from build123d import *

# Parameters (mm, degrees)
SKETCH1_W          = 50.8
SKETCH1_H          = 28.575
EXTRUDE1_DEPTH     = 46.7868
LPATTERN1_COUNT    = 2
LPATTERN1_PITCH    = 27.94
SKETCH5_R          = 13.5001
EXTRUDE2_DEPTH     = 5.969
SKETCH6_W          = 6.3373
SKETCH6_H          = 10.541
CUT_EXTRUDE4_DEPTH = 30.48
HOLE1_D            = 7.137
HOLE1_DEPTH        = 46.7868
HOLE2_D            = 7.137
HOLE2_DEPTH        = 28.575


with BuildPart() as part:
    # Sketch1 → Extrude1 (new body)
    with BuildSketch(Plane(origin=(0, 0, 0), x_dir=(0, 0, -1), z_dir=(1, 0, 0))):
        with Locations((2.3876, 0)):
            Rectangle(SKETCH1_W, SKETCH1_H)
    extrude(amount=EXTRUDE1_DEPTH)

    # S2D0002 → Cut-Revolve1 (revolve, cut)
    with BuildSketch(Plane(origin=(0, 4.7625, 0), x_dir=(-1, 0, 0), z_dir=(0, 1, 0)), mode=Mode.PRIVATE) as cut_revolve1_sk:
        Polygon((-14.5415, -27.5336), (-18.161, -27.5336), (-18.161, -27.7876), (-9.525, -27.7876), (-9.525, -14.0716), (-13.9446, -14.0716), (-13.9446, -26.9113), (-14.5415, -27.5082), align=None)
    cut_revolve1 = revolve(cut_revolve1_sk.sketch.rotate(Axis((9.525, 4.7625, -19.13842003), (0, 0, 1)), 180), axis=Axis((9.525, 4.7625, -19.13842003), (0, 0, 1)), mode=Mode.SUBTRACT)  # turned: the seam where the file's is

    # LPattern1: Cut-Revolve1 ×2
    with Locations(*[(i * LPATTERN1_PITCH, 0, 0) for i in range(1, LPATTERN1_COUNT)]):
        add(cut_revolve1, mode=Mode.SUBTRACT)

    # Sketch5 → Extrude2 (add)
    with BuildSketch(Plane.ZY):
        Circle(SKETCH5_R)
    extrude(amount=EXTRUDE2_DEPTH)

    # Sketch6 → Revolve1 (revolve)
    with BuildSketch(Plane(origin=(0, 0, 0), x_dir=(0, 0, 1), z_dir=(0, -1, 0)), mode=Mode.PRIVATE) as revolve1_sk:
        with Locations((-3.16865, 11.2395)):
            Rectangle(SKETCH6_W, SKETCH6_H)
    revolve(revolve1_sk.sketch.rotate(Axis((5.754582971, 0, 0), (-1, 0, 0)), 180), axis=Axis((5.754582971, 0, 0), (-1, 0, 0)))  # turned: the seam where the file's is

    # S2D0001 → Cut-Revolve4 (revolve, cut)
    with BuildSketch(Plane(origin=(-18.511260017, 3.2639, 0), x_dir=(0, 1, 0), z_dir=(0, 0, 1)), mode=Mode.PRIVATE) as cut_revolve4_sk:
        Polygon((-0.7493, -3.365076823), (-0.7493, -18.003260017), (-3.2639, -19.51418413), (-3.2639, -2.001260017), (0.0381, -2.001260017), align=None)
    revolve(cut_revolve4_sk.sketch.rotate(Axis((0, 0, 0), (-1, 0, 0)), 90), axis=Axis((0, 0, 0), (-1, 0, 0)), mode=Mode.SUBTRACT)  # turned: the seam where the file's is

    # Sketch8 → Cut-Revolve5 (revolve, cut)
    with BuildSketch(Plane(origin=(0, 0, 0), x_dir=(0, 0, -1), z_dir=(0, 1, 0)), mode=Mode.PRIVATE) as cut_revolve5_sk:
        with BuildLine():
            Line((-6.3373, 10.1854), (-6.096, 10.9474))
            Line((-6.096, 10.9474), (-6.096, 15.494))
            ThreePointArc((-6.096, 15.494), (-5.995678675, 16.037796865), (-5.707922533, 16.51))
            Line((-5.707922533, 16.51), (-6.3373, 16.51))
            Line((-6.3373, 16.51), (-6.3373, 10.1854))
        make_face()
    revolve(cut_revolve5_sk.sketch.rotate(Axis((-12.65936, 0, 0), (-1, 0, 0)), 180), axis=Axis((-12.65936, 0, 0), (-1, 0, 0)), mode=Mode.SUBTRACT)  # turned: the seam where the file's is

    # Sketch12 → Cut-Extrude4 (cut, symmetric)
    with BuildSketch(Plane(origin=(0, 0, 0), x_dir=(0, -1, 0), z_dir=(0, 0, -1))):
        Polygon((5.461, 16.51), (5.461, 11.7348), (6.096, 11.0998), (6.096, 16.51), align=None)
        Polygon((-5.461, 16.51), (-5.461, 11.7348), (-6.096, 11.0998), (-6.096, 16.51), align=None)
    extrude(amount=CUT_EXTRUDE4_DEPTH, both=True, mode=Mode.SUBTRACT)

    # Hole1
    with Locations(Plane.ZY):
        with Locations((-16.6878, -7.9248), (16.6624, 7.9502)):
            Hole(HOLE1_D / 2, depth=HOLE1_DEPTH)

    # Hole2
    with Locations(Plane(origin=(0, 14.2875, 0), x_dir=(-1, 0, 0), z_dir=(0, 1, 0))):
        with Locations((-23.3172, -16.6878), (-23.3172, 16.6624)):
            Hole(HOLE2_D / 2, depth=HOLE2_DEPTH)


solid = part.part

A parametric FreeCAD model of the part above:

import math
import FreeCAD as App
import Part
import Sketcher

V = App.Vector
Q = App.Units.Quantity

doc = App.newDocument("Part")
body = doc.addObject("PartDesign::Body", "Body")

# Sketch on YZ plane
sketch1 = doc.addObject("Sketcher::SketchObject", "Sketch")
body.addObject(sketch1)
sketch1.AttachmentSupport = (doc.YZ_Plane, [""])
sketch1.MapMode = "FlatFace"
sketch1.addGeometry(Part.LineSegment(V(14.2875, 23.0124, 0), V(-14.2875, 23.0124, 0)), False)
sketch1.addGeometry(Part.LineSegment(V(-14.2875, 23.0124, 0), V(-14.2875, -27.7876, 0)), False)
sketch1.addGeometry(Part.LineSegment(V(-14.2875, -27.7876, 0), V(14.2875, -27.7876, 0)), False)
sketch1.addGeometry(Part.LineSegment(V(14.2875, -27.7876, 0), V(14.2875, 23.0124, 0)), False)
sketch1.addConstraint(Sketcher.Constraint("Coincident", 0, 2, 1, 1))
sketch1.addConstraint(Sketcher.Constraint("Coincident", 1, 2, 2, 1))
sketch1.addConstraint(Sketcher.Constraint("Coincident", 2, 2, 3, 1))
sketch1.addConstraint(Sketcher.Constraint("Coincident", 3, 2, 0, 1))
sketch1.addConstraint(Sketcher.Constraint("Horizontal", 0))
sketch1.addConstraint(Sketcher.Constraint("Vertical", 1))
sketch1.addConstraint(Sketcher.Constraint("Horizontal", 2))
sketch1.addConstraint(Sketcher.Constraint("Vertical", 3))
sketch1.addConstraint(Sketcher.Constraint("DistanceY", 1, 2, 1, 1, Q("2 in")))
sketch1.addConstraint(Sketcher.Constraint("DistanceX", 0, 2, 0, 1, Q("1.125 in")))
sketch1.addConstraint(Sketcher.Constraint("DistanceX", 0, 2, -1, 1, Q("0.5625 in")))
sketch1.addConstraint(Sketcher.Constraint("DistanceY", -1, 1, 0, 2, Q("0.906 in")))
pad1 = doc.addObject("PartDesign::Pad", "Pad")
body.addObject(pad1)
pad1.Profile = sketch1
pad1.Length = Q("1.842 in")

# Sketch on XZ plane
sketch2 = doc.addObject("Sketcher::SketchObject", "Sketch001")
body.addObject(sketch2)
sketch2.AttachmentSupport = (doc.XZ_Plane, [""])
sketch2.MapMode = "FlatFace"
sketch2.AttachmentOffset = App.Placement(V(0, 0, -0.1875 * 25.4), App.Rotation())
sketch2.addGeometry(Part.LineSegment(V(14.5415, -27.5336, 0), V(18.161, -27.5336, 0)), False)
sketch2.addGeometry(Part.LineSegment(V(18.161, -27.5336, 0), V(18.161, -27.7876, 0)), False)
sketch2.addGeometry(Part.LineSegment(V(18.161, -27.7876, 0), V(9.525, -27.7876, 0)), False)
sketch2.addGeometry(Part.LineSegment(V(9.525, -27.7876, 0), V(9.525, -14.0716, 0)), False)
sketch2.addGeometry(Part.LineSegment(V(9.525, -14.0716, 0), V(13.9446, -14.0716, 0)), False)
sketch2.addGeometry(Part.LineSegment(V(13.9446, -14.0716, 0), V(13.9446, -26.9113, 0)), False)
sketch2.addGeometry(Part.LineSegment(V(13.9446, -26.9113, 0), V(14.5415, -27.5082, 0)), False)
sketch2.addGeometry(Part.LineSegment(V(14.5415, -27.5082, 0), V(14.5415, -27.5336, 0)), False)
sketch2.addGeometry(Part.LineSegment(V(9.525, -27.7876, 0), V(9.525, -14.0716, 0)), True)  # axis
sketch2.addConstraint(Sketcher.Constraint("Coincident", 0, 2, 1, 1))
sketch2.addConstraint(Sketcher.Constraint("Coincident", 1, 2, 2, 1))
sketch2.addConstraint(Sketcher.Constraint("Coincident", 2, 2, 3, 1))
sketch2.addConstraint(Sketcher.Constraint("Coincident", 3, 2, 4, 1))
sketch2.addConstraint(Sketcher.Constraint("Coincident", 4, 2, 5, 1))
sketch2.addConstraint(Sketcher.Constraint("Coincident", 5, 2, 6, 1))
sketch2.addConstraint(Sketcher.Constraint("Coincident", 6, 2, 7, 1))
sketch2.addConstraint(Sketcher.Constraint("Coincident", 7, 2, 0, 1))
sketch2.addConstraint(Sketcher.Constraint("Horizontal", 0))
sketch2.addConstraint(Sketcher.Constraint("Vertical", 1))
sketch2.addConstraint(Sketcher.Constraint("Horizontal", 2))
sketch2.addConstraint(Sketcher.Constraint("Vertical", 3))
sketch2.addConstraint(Sketcher.Constraint("Horizontal", 4))
sketch2.addConstraint(Sketcher.Constraint("Vertical", 5))
sketch2.addConstraint(Sketcher.Constraint("Vertical", 7))
sketch2.addConstraint(Sketcher.Constraint("Vertical", 8))
sketch2.addConstraint(Sketcher.Constraint("Coincident", 8, 1, 2, 2))
sketch2.addConstraint(Sketcher.Constraint("Horizontal", 4, 2, 8, 2))
sketch2.addConstraint(Sketcher.Constraint("Angle", 6, Q("-45 deg")))
sketch2.addConstraint(Sketcher.Constraint("DistanceX", 2, 2, 2, 1, Q("0.34 in")))
sketch2.addConstraint(Sketcher.Constraint("DistanceY", 1, 2, 1, 1, Q("0.01 in")))
sketch2.addConstraint(Sketcher.Constraint("DistanceY", 3, 1, 3, 2, Q("0.54 in")))
sketch2.addConstraint(Sketcher.Constraint("DistanceX", 4, 1, 4, 2, Q("0.174 in")))
sketch2.addConstraint(Sketcher.Constraint("DistanceY", 7, 2, 7, 1, Q("0.001 in")))
sketch2.addConstraint(Sketcher.Constraint("DistanceX", 0, 1, 0, 2, Q("0.1425 in")))
sketch2.addConstraint(Sketcher.Constraint("DistanceX", -1, 1, 0, 2, Q("0.715 in")))
sketch2.addConstraint(Sketcher.Constraint("DistanceY", 0, 2, -1, 1, Q("1.084 in")))
groove = doc.addObject("PartDesign::Groove", "Groove")
body.addObject(groove)
groove.Profile = sketch2
groove.ReferenceAxis = (sketch2, ["Axis0"])
groove.Angle = 360
doc.recompute()

linearpattern = doc.addObject("PartDesign::LinearPattern", "LinearPattern")
body.addObject(linearpattern)
linearpattern.Originals = [groove]
linearpattern.Direction = (doc.X_Axis, [""])
linearpattern.Mode = "offset"
linearpattern.Offset = Q("1.1 in")
linearpattern.Occurrences = 2
body.Tip = linearpattern

# Sketch on YZ plane
sketch3 = doc.addObject("Sketcher::SketchObject", "Sketch002")
body.addObject(sketch3)
sketch3.AttachmentSupport = (doc.YZ_Plane, [""])
sketch3.MapMode = "FlatFace"
sketch3.addGeometry(Part.Circle(V(0, 0, 0), V(0, 0, 1), 13.5001), False)
sketch3.addConstraint(Sketcher.Constraint("Coincident", 0, 3, -1, 1))
sketch3.addConstraint(Sketcher.Constraint("Diameter", 0, Q("1.063 in")))
pad2 = doc.addObject("PartDesign::Pad", "Pad001")
body.addObject(pad2)
pad2.Profile = sketch3
pad2.Length = Q("0.235 in")
pad2.Reversed = True

# Sketch on XZ plane
sketch4 = doc.addObject("Sketcher::SketchObject", "Sketch003")
body.addObject(sketch4)
sketch4.AttachmentSupport = (doc.XZ_Plane, [""])
sketch4.MapMode = "FlatFace"
sketch4.addGeometry(Part.LineSegment(V(-16.51, -6.3373, 0), V(-5.969, -6.3373, 0)), False)
sketch4.addGeometry(Part.LineSegment(V(-5.969, -6.3373, 0), V(-5.969, 0, 0)), False)
sketch4.addGeometry(Part.LineSegment(V(-5.969, 0, 0), V(-16.51, 0, 0)), False)
sketch4.addGeometry(Part.LineSegment(V(-16.51, 0, 0), V(-16.51, -6.3373, 0)), False)
sketch4.addConstraint(Sketcher.Constraint("Coincident", 0, 2, 1, 1))
sketch4.addConstraint(Sketcher.Constraint("Coincident", 1, 2, 2, 1))
sketch4.addConstraint(Sketcher.Constraint("Coincident", 2, 2, 3, 1))
sketch4.addConstraint(Sketcher.Constraint("Coincident", 3, 2, 0, 1))
sketch4.addConstraint(Sketcher.Constraint("Horizontal", 0))
sketch4.addConstraint(Sketcher.Constraint("Vertical", 1))
sketch4.addConstraint(Sketcher.Constraint("Horizontal", 2))
sketch4.addConstraint(Sketcher.Constraint("Vertical", 3))
sketch4.addConstraint(Sketcher.Constraint("PointOnObject", 1, 2, -1))
sketch4.addConstraint(Sketcher.Constraint("DistanceX", 0, 1, 0, 2, Q("0.415 in")))
sketch4.addConstraint(Sketcher.Constraint("DistanceX", 2, 2, -1, 1, Q("0.65 in")))
sketch4.addConstraint(Sketcher.Constraint("DistanceY", 1, 1, 1, 2, Q("0.2495 in")))
revolution = doc.addObject("PartDesign::Revolution", "Revolution")
body.addObject(revolution)
revolution.Profile = sketch4
revolution.ReferenceAxis = (sketch4, ["H_Axis"])
revolution.Angle = 360

# Sketch on XY plane
sketch5 = doc.addObject("Sketcher::SketchObject", "Sketch004")
body.addObject(sketch5)
sketch5.AttachmentSupport = (doc.XY_Plane, [""])
sketch5.MapMode = "FlatFace"
sketch5.addGeometry(Part.LineSegment(V(-0.508, 2.5146, 0), V(-15.146183, 2.5146, 0)), False)
sketch5.addGeometry(Part.LineSegment(V(-15.146183, 2.5146, 0), V(-16.51, 3.302, 0)), False)
sketch5.addGeometry(Part.LineSegment(V(-16.51, 3.302, 0), V(-16.51, 0, 0)), False)
sketch5.addGeometry(Part.LineSegment(V(-16.51, 0, 0), V(1.002924, 0, 0)), False)
sketch5.addGeometry(Part.LineSegment(V(1.002924, 0, 0), V(-0.508, 2.5146, 0)), False)
sketch5.addConstraint(Sketcher.Constraint("Coincident", 0, 2, 1, 1))
sketch5.addConstraint(Sketcher.Constraint("Coincident", 1, 2, 2, 1))
sketch5.addConstraint(Sketcher.Constraint("Coincident", 2, 2, 3, 1))
sketch5.addConstraint(Sketcher.Constraint("Coincident", 3, 2, 4, 1))
sketch5.addConstraint(Sketcher.Constraint("Coincident", 4, 2, 0, 1))
sketch5.addConstraint(Sketcher.Constraint("Horizontal", 0))
sketch5.addConstraint(Sketcher.Constraint("Vertical", 2))
sketch5.addConstraint(Sketcher.Constraint("Horizontal", 3))
sketch5.addConstraint(Sketcher.Constraint("PointOnObject", 2, 2, -1))
sketch5.addConstraint(Sketcher.Constraint("Angle", 1, Q("150 deg")))
sketch5.addConstraint(Sketcher.Constraint("Angle", 4, Q("121 deg")))
sketch5.addConstraint(Sketcher.Constraint("DistanceY", 2, 2, 2, 1, Q("0.13 in")))
sketch5.addConstraint(Sketcher.Constraint("DistanceX", 1, 2, -1, 1, Q("0.65 in")))
sketch5.addConstraint(Sketcher.Constraint("DistanceX", 4, 2, -1, 1, Q("0.02 in")))
sketch5.addConstraint(Sketcher.Constraint("Distance", 1, Q("0.062 in")))
groove2 = doc.addObject("PartDesign::Groove", "Groove001")
body.addObject(groove2)
groove2.Profile = sketch5
groove2.ReferenceAxis = (sketch5, ["H_Axis"])
groove2.Angle = 360

# Sketch on XZ plane
sketch6 = doc.addObject("Sketcher::SketchObject", "Sketch005")
body.addObject(sketch6)
sketch6.AttachmentSupport = (doc.XZ_Plane, [""])
sketch6.MapMode = "FlatFace"
sketch6.addGeometry(Part.LineSegment(V(-10.1854, 6.3373, 0), V(-10.9474, 6.096, 0)), False)
sketch6.addGeometry(Part.LineSegment(V(-10.9474, 6.096, 0), V(-15.494, 6.096, 0)), False)
sketch6.addGeometry(Part.ArcOfCircle(Part.Circle(V(-15.494, 4.572, 0), V(0, 0, 1), 1.524), math.radians(90), math.radians(131.810315)), False)
sketch6.addGeometry(Part.LineSegment(V(-16.51, 5.707923, 0), V(-16.51, 6.3373, 0)), False)
sketch6.addGeometry(Part.LineSegment(V(-16.51, 6.3373, 0), V(-10.1854, 6.3373, 0)), False)
sketch6.addConstraint(Sketcher.Constraint("Coincident", 0, 2, 1, 1))
sketch6.addConstraint(Sketcher.Constraint("Tangent", 1, 2, 2, 1))
sketch6.addConstraint(Sketcher.Constraint("Coincident", 2, 2, 3, 1))
sketch6.addConstraint(Sketcher.Constraint("Coincident", 3, 2, 4, 1))
sketch6.addConstraint(Sketcher.Constraint("Coincident", 4, 2, 0, 1))
sketch6.addConstraint(Sketcher.Constraint("Horizontal", 1))
sketch6.addConstraint(Sketcher.Constraint("Vertical", 3))
sketch6.addConstraint(Sketcher.Constraint("Horizontal", 4))
sketch6.addConstraint(Sketcher.Constraint("Radius", 2, Q("0.06 in")))
sketch6.addConstraint(Sketcher.Constraint("DistanceX", 1, 2, 1, 1, Q("0.179 in")))
sketch6.addConstraint(Sketcher.Constraint("DistanceX", 4, 1, 4, 2, Q("0.249 in")))
sketch6.addConstraint(Sketcher.Constraint("DistanceX", 2, 3, -1, 1, Q("0.61 in")))
sketch6.addConstraint(Sketcher.Constraint("DistanceY", -1, 1, 2, 3, Q("0.18 in")))
sketch6.addConstraint(Sketcher.Constraint("DistanceX", 2, 2, -1, 1, Q("0.65 in")))
sketch6.addConstraint(Sketcher.Constraint("DistanceY", -1, 1, 3, 2, Q("0.2495 in")))
groove3 = doc.addObject("PartDesign::Groove", "Groove002")
body.addObject(groove3)
groove3.Profile = sketch6
groove3.ReferenceAxis = (sketch6, ["H_Axis"])
groove3.Angle = 360

# Sketch on XY plane
sketch7 = doc.addObject("Sketcher::SketchObject", "Sketch006")
body.addObject(sketch7)
sketch7.AttachmentSupport = (doc.XY_Plane, [""])
sketch7.MapMode = "FlatFace"
sketch7.addGeometry(Part.LineSegment(V(-16.51, -5.461, 0), V(-11.7348, -5.461, 0)), False)
sketch7.addGeometry(Part.LineSegment(V(-11.7348, -5.461, 0), V(-11.0998, -6.096, 0)), False)
sketch7.addGeometry(Part.LineSegment(V(-11.0998, -6.096, 0), V(-16.51, -6.096, 0)), False)
sketch7.addGeometry(Part.LineSegment(V(-16.51, -6.096, 0), V(-16.51, -5.461, 0)), False)
sketch7.addGeometry(Part.LineSegment(V(-11.7348, 5.461, 0), V(-16.51, 5.461, 0)), False)
sketch7.addGeometry(Part.LineSegment(V(-16.51, 5.461, 0), V(-16.51, 6.096, 0)), False)
sketch7.addGeometry(Part.LineSegment(V(-16.51, 6.096, 0), V(-11.0998, 6.096, 0)), False)
sketch7.addGeometry(Part.LineSegment(V(-11.0998, 6.096, 0), V(-11.7348, 5.461, 0)), False)
sketch7.addConstraint(Sketcher.Constraint("Coincident", 0, 2, 1, 1))
sketch7.addConstraint(Sketcher.Constraint("Coincident", 1, 2, 2, 1))
sketch7.addConstraint(Sketcher.Constraint("Coincident", 2, 2, 3, 1))
sketch7.addConstraint(Sketcher.Constraint("Coincident", 3, 2, 0, 1))
sketch7.addConstraint(Sketcher.Constraint("Coincident", 4, 2, 5, 1))
sketch7.addConstraint(Sketcher.Constraint("Coincident", 5, 2, 6, 1))
sketch7.addConstraint(Sketcher.Constraint("Coincident", 6, 2, 7, 1))
sketch7.addConstraint(Sketcher.Constraint("Coincident", 7, 2, 4, 1))
sketch7.addConstraint(Sketcher.Constraint("Horizontal", 0))
sketch7.addConstraint(Sketcher.Constraint("Horizontal", 2))
sketch7.addConstraint(Sketcher.Constraint("Vertical", 3))
sketch7.addConstraint(Sketcher.Constraint("Horizontal", 4))
sketch7.addConstraint(Sketcher.Constraint("Vertical", 5))
sketch7.addConstraint(Sketcher.Constraint("Horizontal", 6))
sketch7.addConstraint(Sketcher.Constraint("Symmetric", 3, 2, 4, 2, -1))
sketch7.addConstraint(Sketcher.Constraint("Symmetric", 1, 2, 6, 2, -1))
sketch7.addConstraint(Sketcher.Constraint("Perpendicular", 1, 7))
sketch7.addConstraint(Sketcher.Constraint("Vertical", 0, 2, 7, 2))
sketch7.addConstraint(Sketcher.Constraint("DistanceX", 0, 1, 0, 2, Q("0.188 in")))
sketch7.addConstraint(Sketcher.Constraint("DistanceX", 2, 2, 2, 1, Q("0.213 in")))
sketch7.addConstraint(Sketcher.Constraint("DistanceY", 1, 2, -1, 1, Q("0.24 in")))
sketch7.addConstraint(Sketcher.Constraint("DistanceX", 2, 2, -1, 1, Q("0.65 in")))
pocket1 = doc.addObject("PartDesign::Pocket", "Pocket")
body.addObject(pocket1)
pocket1.Profile = sketch7
pocket1.Length = Q("2.4 in")
pocket1.Midplane = True

# Sketch on YZ plane
sketch8 = doc.addObject("Sketcher::SketchObject", "Sketch007")
body.addObject(sketch8)
sketch8.AttachmentSupport = (doc.YZ_Plane, [""])
sketch8.MapMode = "FlatFace"
sketch8.addGeometry(Part.Circle(V(-7.9248, -16.6878, 0), V(0, 0, 1), 3.5685), False)
sketch8.addGeometry(Part.Circle(V(7.9502, 16.6624, 0), V(0, 0, 1), 3.5685), False)
sketch8.addConstraint(Sketcher.Constraint("Equal", 0, 1))
sketch8.addConstraint(Sketcher.Constraint("Diameter", 0, 7.137))
sketch8.addConstraint(Sketcher.Constraint("DistanceX", 0, 3, -1, 1, Q("0.312 in")))
sketch8.addConstraint(Sketcher.Constraint("DistanceY", 0, 3, -1, 1, Q("0.657 in")))
sketch8.addConstraint(Sketcher.Constraint("DistanceX", -1, 1, 1, 3, Q("0.313 in")))
sketch8.addConstraint(Sketcher.Constraint("DistanceY", -1, 1, 1, 3, Q("0.656 in")))
doc.recompute()
hole = doc.addObject("PartDesign::Hole", "Hole")
body.addObject(hole)
hole.Profile = sketch8
hole.ThreadType = "None"
hole.Diameter = 7.137
hole.DepthType = "Dimension"
hole.Depth = Q("1.842 in")
hole.DrillPoint = "Flat"
hole.Reversed = True

# Sketch on XZ plane
sketch9 = doc.addObject("Sketcher::SketchObject", "Sketch008")
body.addObject(sketch9)
sketch9.AttachmentSupport = (doc.XZ_Plane, [""])
sketch9.MapMode = "FlatFace"
sketch9.AttachmentOffset = App.Placement(V(0, 0, -0.5625 * 25.4), App.Rotation())
sketch9.addGeometry(Part.Circle(V(23.3172, -16.6878, 0), V(0, 0, 1), 3.5685), False)
sketch9.addGeometry(Part.Circle(V(23.3172, 16.6624, 0), V(0, 0, 1), 3.5685), False)
sketch9.addConstraint(Sketcher.Constraint("Equal", 0, 1))
sketch9.addConstraint(Sketcher.Constraint("Vertical", 0, 3, 1, 3))
sketch9.addConstraint(Sketcher.Constraint("Diameter", 0, 7.137))
sketch9.addConstraint(Sketcher.Constraint("DistanceX", -1, 1, 0, 3, Q("0.918 in")))
sketch9.addConstraint(Sketcher.Constraint("DistanceY", 0, 3, -1, 1, Q("0.657 in")))
sketch9.addConstraint(Sketcher.Constraint("DistanceY", -1, 1, 1, 3, Q("0.656 in")))
doc.recompute()
hole2 = doc.addObject("PartDesign::Hole", "Hole001")
body.addObject(hole2)
hole2.Profile = sketch9
hole2.ThreadType = "None"
hole2.Diameter = 7.137
hole2.DepthType = "Dimension"
hole2.Depth = Q("1.125 in")
hole2.DrillPoint = "Flat"
hole2.Reversed = True

doc.recompute()
